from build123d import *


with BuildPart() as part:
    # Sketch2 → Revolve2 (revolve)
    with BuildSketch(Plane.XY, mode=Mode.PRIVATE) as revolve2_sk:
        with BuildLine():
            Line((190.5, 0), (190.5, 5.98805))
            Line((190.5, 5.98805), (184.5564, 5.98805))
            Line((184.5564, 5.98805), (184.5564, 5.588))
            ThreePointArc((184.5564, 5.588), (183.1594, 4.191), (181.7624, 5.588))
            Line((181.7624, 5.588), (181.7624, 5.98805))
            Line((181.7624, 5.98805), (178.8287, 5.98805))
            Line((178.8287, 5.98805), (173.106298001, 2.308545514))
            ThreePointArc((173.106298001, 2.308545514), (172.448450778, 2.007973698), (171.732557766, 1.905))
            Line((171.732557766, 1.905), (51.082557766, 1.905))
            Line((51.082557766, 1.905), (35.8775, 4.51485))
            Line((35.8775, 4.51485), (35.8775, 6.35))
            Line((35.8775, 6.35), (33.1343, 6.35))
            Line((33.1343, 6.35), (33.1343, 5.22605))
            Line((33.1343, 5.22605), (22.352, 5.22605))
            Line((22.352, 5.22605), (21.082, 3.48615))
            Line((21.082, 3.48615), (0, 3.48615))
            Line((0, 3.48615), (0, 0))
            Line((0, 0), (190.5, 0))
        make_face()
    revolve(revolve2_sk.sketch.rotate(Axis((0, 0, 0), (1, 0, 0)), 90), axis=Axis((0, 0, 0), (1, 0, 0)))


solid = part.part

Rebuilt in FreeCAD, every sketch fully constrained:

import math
import FreeCAD as App
import Part
import Sketcher
from FreeCAD import Vector
Q = App.Units.Quantity

doc = App.newDocument("Part")
body = doc.addObject("PartDesign::Body", "Body")

# Sketch on XY plane
sketch1 = body.newObject("Sketcher::SketchObject", "Sketch")
sketch1.AttachmentSupport = (doc.getObject("XY_Plane"), [""])
sketch1.MapMode = "FlatFace"
sketch1.addGeometry([
    Part.LineSegment(Vector(190.5, 0, 0), Vector(190.5, 5.98805, 0)),  # 0
    Part.LineSegment(Vector(190.5, 5.98805, 0), Vector(184.5564, 5.98805, 0)),  # 1
    Part.LineSegment(Vector(184.5564, 5.98805, 0), Vector(184.5564, 5.588, 0)),  # 2
    Part.ArcOfCircle(Part.Circle(Vector(183.1594, 5.588, 0), Vector(0, 0, 1), 1.397), math.radians(180), math.radians(360)),  # 3
    Part.LineSegment(Vector(181.7624, 5.588, 0), Vector(181.7624, 5.98805, 0)),  # 4
    Part.LineSegment(Vector(181.7624, 5.98805, 0), Vector(178.8287, 5.98805, 0)),  # 5
    Part.LineSegment(Vector(178.8287, 5.98805, 0), Vector(173.106298, 2.308546, 0)),  # 6
    Part.ArcOfCircle(Part.Circle(Vector(171.732558, 4.445, 0), Vector(0, 0, 1), 2.54), math.radians(-90), math.radians(-57.258983)),  # 7
    Part.LineSegment(Vector(171.732558, 1.905, 0), Vector(51.082558, 1.905, 0)),  # 8
    Part.LineSegment(Vector(51.082558, 1.905, 0), Vector(35.8775, 4.51485, 0)),  # 9
    Part.LineSegment(Vector(35.8775, 4.51485, 0), Vector(35.8775, 6.35, 0)),  # 10
    Part.LineSegment(Vector(35.8775, 6.35, 0), Vector(33.1343, 6.35, 0)),  # 11
    Part.LineSegment(Vector(33.1343, 6.35, 0), Vector(33.1343, 5.22605, 0)),  # 12
    Part.LineSegment(Vector(33.1343, 5.22605, 0), Vector(22.352, 5.22605, 0)),  # 13
    Part.LineSegment(Vector(22.352, 5.22605, 0), Vector(21.082, 3.48615, 0)),  # 14
    Part.LineSegment(Vector(21.082, 3.48615, 0), Vector(0, 3.48615, 0)),  # 15
    Part.LineSegment(Vector(0, 3.48615, 0), Vector(0, 0, 0)),  # 16
    Part.LineSegment(Vector(0, 0, 0), Vector(190.5, 0, 0)),  # 17
], False)
sketch1.addConstraint([
    Sketcher.Constraint("Coincident", 0, 2, 1, 1),
    Sketcher.Constraint("Coincident", 1, 2, 2, 1),
    Sketcher.Constraint("Tangent", 2, 2, 3, 2),
    Sketcher.Constraint("Tangent", 3, 1, 4, 1),
    Sketcher.Constraint("Coincident", 4, 2, 5, 1),
    Sketcher.Constraint("Coincident", 5, 2, 6, 1),
    Sketcher.Constraint("Tangent", 6, 2, 7, 2),
    Sketcher.Constraint("Tangent", 7, 1, 8, 1),
    Sketcher.Constraint("Coincident", 8, 2, 9, 1),
    Sketcher.Constraint("Coincident", 9, 2, 10, 1),
    Sketcher.Constraint("Coincident", 10, 2, 11, 1),
    Sketcher.Constraint("Coincident", 11, 2, 12, 1),
    Sketcher.Constraint("Coincident", 12, 2, 13, 1),
    Sketcher.Constraint("Coincident", 13, 2, 14, 1),
    Sketcher.Constraint("Coincident", 14, 2, 15, 1),
    Sketcher.Constraint("Coincident", 15, 2, 16, 1),
    Sketcher.Constraint("Coincident", 16, 2, 17, 1),
    Sketcher.Constraint("Coincident", 17, 2, 0, 1),
    Sketcher.Constraint("Vertical", 0),
    Sketcher.Constraint("Horizontal", 1),
    Sketcher.Constraint("Vertical", 2),
    Sketcher.Constraint("Vertical", 4),
    Sketcher.Constraint("Horizontal", 5),
    Sketcher.Constraint("Horizontal", 8),
    Sketcher.Constraint("Vertical", 10),
    Sketcher.Constraint("Horizontal", 11),
    Sketcher.Constraint("Vertical", 12),
    Sketcher.Constraint("Horizontal", 13),
    Sketcher.Constraint("Horizontal", 15),
    Sketcher.Constraint("Vertical", 16),
    Sketcher.Constraint("Horizontal", 17),
    Sketcher.Constraint("Coincident", 16, 2, -1, 1),
    Sketcher.Constraint("Horizontal", 1, 2, 4, 2),
    Sketcher.Constraint("Radius", 7, Q("0.1 in")),
    Sketcher.Constraint("DistanceX", 17, 1, 17, 2, Q("7.5 in")),
    Sketcher.Constraint("Radius", 3, Q("0.055 in")),
    Sketcher.Constraint("DistanceX", 8, 2, 8, 1, Q("4.75 in")),
    Sketcher.Constraint("DistanceX", 15, 2, 15, 1, Q("0.83 in")),
    Sketcher.Constraint("DistanceX", 1, 2, 1, 1, Q("0.234 in")),
    Sketcher.Constraint("DistanceX", 11, 2, 11, 1, Q("0.108 in")),
    Sketcher.Constraint("DistanceY", -1, 1, 3, 3, Q("0.22 in")),
    Sketcher.Constraint("DistanceY", -1, 1, 10, 2, Q("0.25 in")),
    Sketcher.Constraint("DistanceX", -1, 1, 13, 2, Q("0.88 in")),
    Sketcher.Constraint("DistanceX", 5, 2, 5, 1, Q("0.1155 in")),
    Sketcher.Constraint("DistanceX", 13, 2, 13, 1, Q("0.4245 in")),
    Sketcher.Constraint("DistanceY", -1, 1, 7, 3, Q("0.175 in")),
    Sketcher.Constraint("DistanceY", 9, 2, 5, 2, Q("0.058 in")),
    Sketcher.Constraint("DistanceY", 9, 2, 12, 2, Q("0.028 in")),
    Sketcher.Constraint("DistanceY", 14, 2, 13, 2, Q("0.0685 in")),
    Sketcher.Constraint("DistanceY", 0, 1, 0, 2, 5.98805),
    Sketcher.Constraint("DistanceX", -1, 1, 6, 2, 173.106298),
])
revolution = body.newObject("PartDesign::Revolution", "Revolution")
revolution.Profile = sketch1
revolution.ReferenceAxis = (sketch1, ["H_Axis"])
revolution.Angle = 360

doc.recompute()
